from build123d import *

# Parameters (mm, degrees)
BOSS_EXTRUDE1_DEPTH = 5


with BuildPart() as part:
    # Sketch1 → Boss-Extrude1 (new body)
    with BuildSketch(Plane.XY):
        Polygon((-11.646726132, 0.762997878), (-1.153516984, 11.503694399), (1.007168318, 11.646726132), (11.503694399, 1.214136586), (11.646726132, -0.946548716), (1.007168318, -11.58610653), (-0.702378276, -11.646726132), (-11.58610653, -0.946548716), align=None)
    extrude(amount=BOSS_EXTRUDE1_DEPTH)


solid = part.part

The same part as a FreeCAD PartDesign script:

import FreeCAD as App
import Part
import Sketcher

V = App.Vector
Q = App.Units.Quantity


def add_polygon(sketch, points):
    """Adds a closed chain of lines whose ends are joined by coincident constraints."""
    first, n = sketch.GeometryCount, len(points)
    for a, b in zip(points, points[1:] + points[:1]):
        sketch.addGeometry(Part.LineSegment(App.Vector(*a, 0), App.Vector(*b, 0)), False)
    for i in range(n):
        sketch.addConstraint(Sketcher.Constraint("Coincident", first + i, 2, first + (i + 1) % n, 1))

doc = App.newDocument("Part")
params = doc.addObject("Spreadsheet::Sheet", "Params")
for row, (alias, value) in enumerate([
    ("pad1_length", "5 mm"),
], start=1):
    params.set(f"A{row}", alias)
    params.set(f"B{row}", "=" + value)
    params.setAlias(f"B{row}", alias)

body = doc.addObject("PartDesign::Body", "Body")

sketch1 = doc.addObject("Sketcher::SketchObject", "Sketch")
body.addObject(sketch1)
sketch1.AttachmentSupport = (doc.XY_Plane, [""])
sketch1.MapMode = "FlatFace"
add_polygon(sketch1, [(-1.153517, 11.503694), (-11.646726, 0.762998), (-11.586107, -0.946549), (-0.702378, -11.646726), (1.007168, -11.586107), (11.646726, -0.946549), (11.503694, 1.214137), (1.007168, 11.646726)])
sketch1.addConstraint([
    Sketcher.Constraint("DistanceX", 1, 2, 5, 2, Q("23.089801 mm")),
    Sketcher.Constraint("Distance", 0, Q("15.015658 mm")),
    Sketcher.Constraint("Distance", 1, Q("1.710621 mm")),
    Sketcher.Constraint("Distance", 3, Q("1.710621 mm")),
    Sketcher.Constraint("Distance", 6, Q("14.799189 mm")),
    Sketcher.Constraint("DistanceY", 1, 2, -1, 1, Q("0.946549 mm")),
    Sketcher.Constraint("DistanceX", 2, 2, -1, 1, Q("0.702378 mm")),
    Sketcher.Constraint("DistanceX", -1, 1, 3, 2, Q("1.007168 mm")),
    Sketcher.Constraint("DistanceY", 4, 2, -1, 1, Q("0.946549 mm")),
    Sketcher.Constraint("DistanceX", -1, 1, 6, 2, Q("1.007168 mm")),
    Sketcher.Constraint("DistanceX", 0, 2, 1, 2, Q("0.06062 mm")),
    Sketcher.Constraint("DistanceX", 1, 2, 2, 2, Q("10.883728 mm")),
    Sketcher.Constraint("DistanceX", 5, 2, 4, 2, Q("0.143032 mm")),
    Sketcher.Constraint("DistanceY", 0, 2, 5, 2, Q("0.451139 mm")),
    Sketcher.Constraint("DistanceY", 7, 2, 6, 2, Q("0.143032 mm")),
    Sketcher.Constraint("Distance", 2, Q("15.262678 mm")),
])
pad1 = doc.addObject("PartDesign::Pad", "Pad")
body.addObject(pad1)
pad1.Profile = sketch1
pad1.setExpression("Length", "Params.pad1_length")

doc.recompute()
